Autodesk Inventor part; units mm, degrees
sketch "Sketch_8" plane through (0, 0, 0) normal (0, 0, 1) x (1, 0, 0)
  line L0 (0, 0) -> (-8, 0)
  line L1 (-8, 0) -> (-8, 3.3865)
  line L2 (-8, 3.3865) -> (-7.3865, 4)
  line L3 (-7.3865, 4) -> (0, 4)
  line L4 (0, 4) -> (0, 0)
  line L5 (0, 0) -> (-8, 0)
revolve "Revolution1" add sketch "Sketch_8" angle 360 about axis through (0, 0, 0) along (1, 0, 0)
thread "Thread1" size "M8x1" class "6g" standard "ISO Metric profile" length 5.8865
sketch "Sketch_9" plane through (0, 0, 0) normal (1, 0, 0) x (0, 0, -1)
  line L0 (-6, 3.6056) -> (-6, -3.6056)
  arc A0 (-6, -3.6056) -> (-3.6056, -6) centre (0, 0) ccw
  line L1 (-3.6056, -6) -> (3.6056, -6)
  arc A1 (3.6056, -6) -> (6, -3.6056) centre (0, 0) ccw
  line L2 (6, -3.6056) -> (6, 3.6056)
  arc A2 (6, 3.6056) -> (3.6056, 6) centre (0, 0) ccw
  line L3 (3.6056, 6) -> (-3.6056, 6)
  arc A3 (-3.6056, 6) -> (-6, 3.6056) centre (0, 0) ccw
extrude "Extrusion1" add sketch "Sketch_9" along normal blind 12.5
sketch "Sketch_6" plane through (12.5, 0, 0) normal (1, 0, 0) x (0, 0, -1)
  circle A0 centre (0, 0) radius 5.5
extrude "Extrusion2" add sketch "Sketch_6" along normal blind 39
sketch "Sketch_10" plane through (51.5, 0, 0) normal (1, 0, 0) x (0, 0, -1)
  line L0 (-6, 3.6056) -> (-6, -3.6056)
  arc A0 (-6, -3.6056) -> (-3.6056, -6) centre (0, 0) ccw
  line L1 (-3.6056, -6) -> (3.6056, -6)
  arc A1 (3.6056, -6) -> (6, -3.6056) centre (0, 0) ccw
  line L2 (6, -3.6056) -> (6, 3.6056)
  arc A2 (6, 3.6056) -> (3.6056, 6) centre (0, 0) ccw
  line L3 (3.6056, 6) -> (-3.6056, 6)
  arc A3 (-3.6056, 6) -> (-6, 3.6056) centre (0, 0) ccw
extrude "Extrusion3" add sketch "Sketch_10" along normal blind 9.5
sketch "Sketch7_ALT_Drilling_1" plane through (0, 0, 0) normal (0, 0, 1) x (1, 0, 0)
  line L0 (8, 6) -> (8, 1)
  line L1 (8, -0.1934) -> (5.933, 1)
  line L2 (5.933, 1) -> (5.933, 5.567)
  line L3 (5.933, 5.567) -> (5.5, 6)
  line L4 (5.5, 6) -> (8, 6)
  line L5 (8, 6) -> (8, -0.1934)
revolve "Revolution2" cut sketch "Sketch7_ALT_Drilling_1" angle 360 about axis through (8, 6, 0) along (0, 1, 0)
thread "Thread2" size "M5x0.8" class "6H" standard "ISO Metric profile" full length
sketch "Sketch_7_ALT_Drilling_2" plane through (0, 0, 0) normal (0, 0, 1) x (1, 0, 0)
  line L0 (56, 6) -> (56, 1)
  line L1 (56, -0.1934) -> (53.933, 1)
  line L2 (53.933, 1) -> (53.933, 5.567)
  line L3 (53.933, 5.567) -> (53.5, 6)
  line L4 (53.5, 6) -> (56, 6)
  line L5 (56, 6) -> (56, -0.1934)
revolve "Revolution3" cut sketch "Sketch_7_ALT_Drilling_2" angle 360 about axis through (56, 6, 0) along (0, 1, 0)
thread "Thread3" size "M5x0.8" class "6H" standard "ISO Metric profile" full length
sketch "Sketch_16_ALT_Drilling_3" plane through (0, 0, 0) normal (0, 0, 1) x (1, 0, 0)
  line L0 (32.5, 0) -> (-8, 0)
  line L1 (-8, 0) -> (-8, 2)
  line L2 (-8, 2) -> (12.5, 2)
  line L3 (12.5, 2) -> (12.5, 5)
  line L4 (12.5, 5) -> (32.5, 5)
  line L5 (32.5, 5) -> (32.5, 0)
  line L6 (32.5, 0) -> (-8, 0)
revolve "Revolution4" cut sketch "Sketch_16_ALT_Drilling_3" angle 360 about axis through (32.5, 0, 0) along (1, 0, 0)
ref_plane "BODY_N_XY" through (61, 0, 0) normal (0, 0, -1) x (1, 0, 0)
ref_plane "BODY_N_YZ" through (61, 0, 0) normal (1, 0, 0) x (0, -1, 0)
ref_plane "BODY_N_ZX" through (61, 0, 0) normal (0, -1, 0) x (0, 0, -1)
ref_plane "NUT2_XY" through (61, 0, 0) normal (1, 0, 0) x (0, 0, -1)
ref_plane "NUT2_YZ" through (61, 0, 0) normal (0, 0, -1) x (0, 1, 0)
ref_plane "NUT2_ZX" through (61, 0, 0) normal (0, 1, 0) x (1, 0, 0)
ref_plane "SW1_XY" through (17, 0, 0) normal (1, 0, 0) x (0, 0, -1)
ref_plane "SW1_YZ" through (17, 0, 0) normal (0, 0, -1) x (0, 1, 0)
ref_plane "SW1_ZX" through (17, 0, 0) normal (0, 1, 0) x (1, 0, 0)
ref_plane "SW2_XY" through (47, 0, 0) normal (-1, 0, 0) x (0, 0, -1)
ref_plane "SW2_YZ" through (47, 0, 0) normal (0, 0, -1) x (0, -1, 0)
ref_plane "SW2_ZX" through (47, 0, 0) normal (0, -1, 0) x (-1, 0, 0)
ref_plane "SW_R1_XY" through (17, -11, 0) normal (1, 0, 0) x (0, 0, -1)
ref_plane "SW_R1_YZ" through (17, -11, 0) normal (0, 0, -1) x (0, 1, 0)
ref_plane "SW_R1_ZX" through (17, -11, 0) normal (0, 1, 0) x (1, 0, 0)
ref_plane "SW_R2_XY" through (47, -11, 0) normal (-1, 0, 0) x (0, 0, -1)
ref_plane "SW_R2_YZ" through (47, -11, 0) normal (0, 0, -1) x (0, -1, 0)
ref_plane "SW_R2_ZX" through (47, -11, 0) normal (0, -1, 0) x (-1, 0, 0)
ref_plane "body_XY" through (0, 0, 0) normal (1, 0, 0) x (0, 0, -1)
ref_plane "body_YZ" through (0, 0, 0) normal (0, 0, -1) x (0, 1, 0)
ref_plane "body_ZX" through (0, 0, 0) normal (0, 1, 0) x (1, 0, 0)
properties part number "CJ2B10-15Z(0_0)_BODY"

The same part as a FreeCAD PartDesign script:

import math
import FreeCAD as App
import Part
import Sketcher
from FreeCAD import Vector
Q = App.Units.Quantity


def add_polygon(sketch, points):
    """Adds a closed chain of lines whose ends are joined by coincident constraints."""
    first, n = sketch.GeometryCount, len(points)
    for a, b in zip(points, points[1:] + points[:1]):
        sketch.addGeometry(Part.LineSegment(App.Vector(*a, 0), App.Vector(*b, 0)), False)
    for i in range(n):
        sketch.addConstraint(Sketcher.Constraint("Coincident", first + i, 2, first + (i + 1) % n, 1))

doc = App.newDocument("Part")
body = doc.addObject("PartDesign::Body", "Body")

# Sketch on XY plane
sketch1 = body.newObject("Sketcher::SketchObject", "Sketch")
sketch1.AttachmentSupport = (doc.getObject("XY_Plane"), [""])
sketch1.MapMode = "FlatFace"
add_polygon(sketch1, [(-8, 0), (0, 0), (0, 4), (-7.4, 4), (-8, 3.4)])  # lines 0-4
sketch1.addConstraint([
    Sketcher.Constraint("Horizontal", 0),
    Sketcher.Constraint("Vertical", 1),
    Sketcher.Constraint("Horizontal", 2),
    Sketcher.Constraint("Vertical", 4),
    Sketcher.Constraint("Coincident", 0, 2, -1, 1),
    Sketcher.Constraint("DistanceX", 0, 1, 0, 2, 8.0),
    Sketcher.Constraint("DistanceY", 1, 1, 1, 2, 4.0),
    Sketcher.Constraint("Angle", 3, Q("-135 deg")),
    Sketcher.Constraint("DistanceX", 2, 2, 2, 1, 7.3865),
])
revolution = body.newObject("PartDesign::Revolution", "Revolution")
revolution.Profile = sketch1
revolution.ReferenceAxis = (sketch1, ["H_Axis"])
revolution.Angle = 360

# Sketch on YZ plane
sketch2 = body.newObject("Sketcher::SketchObject", "Sketch001")
sketch2.AttachmentSupport = (doc.getObject("YZ_Plane"), [""])
sketch2.MapMode = "FlatFace"
sketch2.addGeometry([
    Part.ArcOfCircle(Part.Circle(Vector(0, 0, 0), Vector(0, 0, 1), 7), math.radians(31), math.radians(59)),  # 0
    Part.LineSegment(Vector(3.6, 6, 0), Vector(-3.6, 6, 0)),  # 1
    Part.ArcOfCircle(Part.Circle(Vector(0, 0, 0), Vector(0, 0, 1), 7), math.radians(121), math.radians(149)),  # 2
    Part.LineSegment(Vector(-6, 3.6, 0), Vector(-6, -3.6, 0)),  # 3
    Part.ArcOfCircle(Part.Circle(Vector(0, 0, 0), Vector(0, 0, 1), 7), math.radians(-149), math.radians(-121)),  # 4
    Part.LineSegment(Vector(-3.6, -6, 0), Vector(3.6, -6, 0)),  # 5
    Part.ArcOfCircle(Part.Circle(Vector(0, 0, 0), Vector(0, 0, 1), 7), math.radians(-59), math.radians(-31)),  # 6
    Part.LineSegment(Vector(6, -3.6, 0), Vector(6, 3.6, 0)),  # 7
], False)
sketch2.addConstraint([
    Sketcher.Constraint("Coincident", 0, 2, 1, 1),
    Sketcher.Constraint("Coincident", 1, 2, 2, 1),
    Sketcher.Constraint("Coincident", 2, 2, 3, 1),
    Sketcher.Constraint("Coincident", 3, 2, 4, 1),
    Sketcher.Constraint("Coincident", 4, 2, 5, 1),
    Sketcher.Constraint("Coincident", 5, 2, 6, 1),
    Sketcher.Constraint("Coincident", 6, 2, 7, 1),
    Sketcher.Constraint("Coincident", 7, 2, 0, 1),
    Sketcher.Constraint("Horizontal", 1),
    Sketcher.Constraint("Vertical", 3),
    Sketcher.Constraint("Horizontal", 5),
    Sketcher.Constraint("Vertical", 7),
    Sketcher.Constraint("Coincident", 0, 3, -1, 1),
    Sketcher.Constraint("Coincident", 2, 3, -1, 1),
    Sketcher.Constraint("Coincident", 4, 3, -1, 1),
    Sketcher.Constraint("Coincident", 6, 3, -1, 1),
    Sketcher.Constraint("Equal", 0, 2),
    Sketcher.Constraint("Equal", 2, 4),
    Sketcher.Constraint("Equal", 4, 6),
    Sketcher.Constraint("Horizontal", 3, 2, 6, 2),
    Sketcher.Constraint("Vertical", 1, 2, 4, 2),
    Sketcher.Constraint("Equal", 5, 3),
    Sketcher.Constraint("Radius", 0, 7.0),
    Sketcher.Constraint("DistanceY", -1, 1, 0, 2, 6.0),
])
pad1 = body.newObject("PartDesign::Pad", "Pad")
pad1.Profile = sketch2
pad1.Length = 12.5

# Sketch on YZ plane
sketch3 = body.newObject("Sketcher::SketchObject", "Sketch002")
sketch3.AttachmentSupport = (doc.getObject("YZ_Plane"), [""])
sketch3.MapMode = "FlatFace"
sketch3.AttachmentOffset = App.Placement(Vector(0, 0, 12.5), App.Rotation())
sketch3.addGeometry(Part.Circle(Vector(0, 0, 0), Vector(0, 0, 1), 6), False)
sketch3.addConstraint([
    Sketcher.Constraint("Coincident", 0, 3, -1, 1),
    Sketcher.Constraint("Diameter", 0, 11.0),
])
pad2 = body.newObject("PartDesign::Pad", "Pad001")
pad2.Profile = sketch3
pad2.Length = 39

# Sketch on YZ plane
sketch4 = body.newObject("Sketcher::SketchObject", "Sketch003")
sketch4.AttachmentSupport = (doc.getObject("YZ_Plane"), [""])
sketch4.MapMode = "FlatFace"
sketch4.AttachmentOffset = App.Placement(Vector(0, 0, 51.5), App.Rotation())
sketch4.addGeometry([
    Part.ArcOfCircle(Part.Circle(Vector(0, 0, 0), Vector(0, 0, 1), 7), math.radians(31), math.radians(59)),  # 0
    Part.LineSegment(Vector(3.6, 6, 0), Vector(-3.6, 6, 0)),  # 1
    Part.ArcOfCircle(Part.Circle(Vector(0, 0, 0), Vector(0, 0, 1), 7), math.radians(121), math.radians(149)),  # 2
    Part.LineSegment(Vector(-6, 3.6, 0), Vector(-6, -3.6, 0)),  # 3
    Part.ArcOfCircle(Part.Circle(Vector(0, 0, 0), Vector(0, 0, 1), 7), math.radians(-149), math.radians(-121)),  # 4
    Part.LineSegment(Vector(-3.6, -6, 0), Vector(3.6, -6, 0)),  # 5
    Part.ArcOfCircle(Part.Circle(Vector(0, 0, 0), Vector(0, 0, 1), 7), math.radians(-59), math.radians(-31)),  # 6
    Part.LineSegment(Vector(6, -3.6, 0), Vector(6, 3.6, 0)),  # 7
], False)
sketch4.addConstraint([
    Sketcher.Constraint("Coincident", 0, 2, 1, 1),
    Sketcher.Constraint("Coincident", 1, 2, 2, 1),
    Sketcher.Constraint("Coincident", 2, 2, 3, 1),
    Sketcher.Constraint("Coincident", 3, 2, 4, 1),
    Sketcher.Constraint("Coincident", 4, 2, 5, 1),
    Sketcher.Constraint("Coincident", 5, 2, 6, 1),
    Sketcher.Constraint("Coincident", 6, 2, 7, 1),
    Sketcher.Constraint("Coincident", 7, 2, 0, 1),
    Sketcher.Constraint("Horizontal", 1),
    Sketcher.Constraint("Vertical", 3),
    Sketcher.Constraint("Horizontal", 5),
    Sketcher.Constraint("Vertical", 7),
    Sketcher.Constraint("Coincident", 0, 3, -1, 1),
    Sketcher.Constraint("Coincident", 2, 3, -1, 1),
    Sketcher.Constraint("Coincident", 4, 3, -1, 1),
    Sketcher.Constraint("Coincident", 6, 3, -1, 1),
    Sketcher.Constraint("Equal", 0, 2),
    Sketcher.Constraint("Equal", 2, 4),
    Sketcher.Constraint("Equal", 4, 6),
    Sketcher.Constraint("Horizontal", 3, 2, 6, 2),
    Sketcher.Constraint("Vertical", 1, 2, 4, 2),
    Sketcher.Constraint("Equal", 5, 3),
    Sketcher.Constraint("Radius", 0, 7.0),
    Sketcher.Constraint("DistanceY", -1, 1, 0, 2, 6.0),
])
pad3 = body.newObject("PartDesign::Pad", "Pad002")
pad3.Profile = sketch4
pad3.Length = 9.5

# Sketch on XY plane
sketch5 = body.newObject("Sketcher::SketchObject", "Sketch004")
sketch5.AttachmentSupport = (doc.getObject("XY_Plane"), [""])
sketch5.MapMode = "FlatFace"
add_polygon(sketch5, [(8, -0.2), (8, 6), (5.5, 6), (5.9, 5.6), (5.9, 1)])  # lines 0-4
sketch5.addGeometry(Part.LineSegment(Vector(8, -0.2, 0), Vector(8, 6, 0)), True)  # axis
sketch5.addConstraint([
    Sketcher.Constraint("Vertical", 0),
    Sketcher.Constraint("Horizontal", 1),
    Sketcher.Constraint("Vertical", 3),
    Sketcher.Constraint("Vertical", 5),
    Sketcher.Constraint("Coincident", 5, 1, 4, 2),
    Sketcher.Constraint("Horizontal", 1, 2, 5, 2),
    Sketcher.Constraint("Angle", 2, Q("-45 deg")),
    Sketcher.Constraint("Angle", 4, Q("-30.0004 deg")),
    Sketcher.Constraint("DistanceX", 1, 2, 1, 1, 2.5),
    Sketcher.Constraint("DistanceX", -1, 1, 0, 2, 8.0),
    Sketcher.Constraint("DistanceY", -1, 1, 0, 2, 6.0),
    Sketcher.Constraint("DistanceY", -1, 1, 3, 2, 1.0),
    Sketcher.Constraint("DistanceY", 3, 2, 3, 1, 4.567),
])
groove = body.newObject("PartDesign::Groove", "Groove")
groove.Profile = sketch5
groove.ReferenceAxis = (sketch5, ["Axis0"])
groove.Angle = 360

# Sketch on XY plane
sketch6 = body.newObject("Sketcher::SketchObject", "Sketch005")
sketch6.AttachmentSupport = (doc.getObject("XY_Plane"), [""])
sketch6.MapMode = "FlatFace"
add_polygon(sketch6, [(56, -0.2), (56, 6), (53.5, 6), (53.9, 5.6), (53.9, 1)])  # lines 0-4
sketch6.addGeometry(Part.LineSegment(Vector(56, -0.2, 0), Vector(56, 6, 0)), True)  # axis
sketch6.addConstraint([
    Sketcher.Constraint("Vertical", 0),
    Sketcher.Constraint("Horizontal", 1),
    Sketcher.Constraint("Vertical", 3),
    Sketcher.Constraint("Vertical", 5),
    Sketcher.Constraint("Coincident", 5, 1, 4, 2),
    Sketcher.Constraint("Horizontal", 1, 2, 5, 2),
    Sketcher.Constraint("Angle", 2, Q("-45 deg")),
    Sketcher.Constraint("Angle", 4, Q("-30.0004 deg")),
    Sketcher.Constraint("DistanceX", 1, 2, 1, 1, 2.5),
    Sketcher.Constraint("DistanceX", -1, 1, 0, 2, 56.0),
    Sketcher.Constraint("DistanceY", -1, 1, 0, 2, 6.0),
    Sketcher.Constraint("DistanceY", -1, 1, 3, 2, 1.0),
    Sketcher.Constraint("DistanceY", 3, 2, 3, 1, 4.567),
])
groove2 = body.newObject("PartDesign::Groove", "Groove001")
groove2.Profile = sketch6
groove2.ReferenceAxis = (sketch6, ["Axis0"])
groove2.Angle = 360

# Sketch on XY plane
sketch7 = body.newObject("Sketcher::SketchObject", "Sketch006")
sketch7.AttachmentSupport = (doc.getObject("XY_Plane"), [""])
sketch7.MapMode = "FlatFace"
add_polygon(sketch7, [(-8, 0), (32.5, 0), (32.5, 5), (12.5, 5), (12.5, 2), (-8, 2)])  # lines 0-5
sketch7.addConstraint([
    Sketcher.Constraint("Horizontal", 0),
    Sketcher.Constraint("Vertical", 1),
    Sketcher.Constraint("Horizontal", 2),
    Sketcher.Constraint("Vertical", 3),
    Sketcher.Constraint("Horizontal", 4),
    Sketcher.Constraint("Vertical", 5),
    Sketcher.Constraint("PointOnObject", 0, 2, -1),
    Sketcher.Constraint("DistanceX", 2, 2, 2, 1, 20.0),
    Sketcher.Constraint("DistanceY", 1, 1, 1, 2, 5.0),
    Sketcher.Constraint("DistanceY", 3, 2, 3, 1, 3.0),
    Sketcher.Constraint("DistanceX", 0, 1, 0, 2, 40.5),
    Sketcher.Constraint("DistanceX", 4, 2, -1, 1, 8.0),
])
groove3 = body.newObject("PartDesign::Groove", "Groove002")
groove3.Profile = sketch7
groove3.ReferenceAxis = (sketch7, ["H_Axis"])
groove3.Angle = 360

doc.recompute()
